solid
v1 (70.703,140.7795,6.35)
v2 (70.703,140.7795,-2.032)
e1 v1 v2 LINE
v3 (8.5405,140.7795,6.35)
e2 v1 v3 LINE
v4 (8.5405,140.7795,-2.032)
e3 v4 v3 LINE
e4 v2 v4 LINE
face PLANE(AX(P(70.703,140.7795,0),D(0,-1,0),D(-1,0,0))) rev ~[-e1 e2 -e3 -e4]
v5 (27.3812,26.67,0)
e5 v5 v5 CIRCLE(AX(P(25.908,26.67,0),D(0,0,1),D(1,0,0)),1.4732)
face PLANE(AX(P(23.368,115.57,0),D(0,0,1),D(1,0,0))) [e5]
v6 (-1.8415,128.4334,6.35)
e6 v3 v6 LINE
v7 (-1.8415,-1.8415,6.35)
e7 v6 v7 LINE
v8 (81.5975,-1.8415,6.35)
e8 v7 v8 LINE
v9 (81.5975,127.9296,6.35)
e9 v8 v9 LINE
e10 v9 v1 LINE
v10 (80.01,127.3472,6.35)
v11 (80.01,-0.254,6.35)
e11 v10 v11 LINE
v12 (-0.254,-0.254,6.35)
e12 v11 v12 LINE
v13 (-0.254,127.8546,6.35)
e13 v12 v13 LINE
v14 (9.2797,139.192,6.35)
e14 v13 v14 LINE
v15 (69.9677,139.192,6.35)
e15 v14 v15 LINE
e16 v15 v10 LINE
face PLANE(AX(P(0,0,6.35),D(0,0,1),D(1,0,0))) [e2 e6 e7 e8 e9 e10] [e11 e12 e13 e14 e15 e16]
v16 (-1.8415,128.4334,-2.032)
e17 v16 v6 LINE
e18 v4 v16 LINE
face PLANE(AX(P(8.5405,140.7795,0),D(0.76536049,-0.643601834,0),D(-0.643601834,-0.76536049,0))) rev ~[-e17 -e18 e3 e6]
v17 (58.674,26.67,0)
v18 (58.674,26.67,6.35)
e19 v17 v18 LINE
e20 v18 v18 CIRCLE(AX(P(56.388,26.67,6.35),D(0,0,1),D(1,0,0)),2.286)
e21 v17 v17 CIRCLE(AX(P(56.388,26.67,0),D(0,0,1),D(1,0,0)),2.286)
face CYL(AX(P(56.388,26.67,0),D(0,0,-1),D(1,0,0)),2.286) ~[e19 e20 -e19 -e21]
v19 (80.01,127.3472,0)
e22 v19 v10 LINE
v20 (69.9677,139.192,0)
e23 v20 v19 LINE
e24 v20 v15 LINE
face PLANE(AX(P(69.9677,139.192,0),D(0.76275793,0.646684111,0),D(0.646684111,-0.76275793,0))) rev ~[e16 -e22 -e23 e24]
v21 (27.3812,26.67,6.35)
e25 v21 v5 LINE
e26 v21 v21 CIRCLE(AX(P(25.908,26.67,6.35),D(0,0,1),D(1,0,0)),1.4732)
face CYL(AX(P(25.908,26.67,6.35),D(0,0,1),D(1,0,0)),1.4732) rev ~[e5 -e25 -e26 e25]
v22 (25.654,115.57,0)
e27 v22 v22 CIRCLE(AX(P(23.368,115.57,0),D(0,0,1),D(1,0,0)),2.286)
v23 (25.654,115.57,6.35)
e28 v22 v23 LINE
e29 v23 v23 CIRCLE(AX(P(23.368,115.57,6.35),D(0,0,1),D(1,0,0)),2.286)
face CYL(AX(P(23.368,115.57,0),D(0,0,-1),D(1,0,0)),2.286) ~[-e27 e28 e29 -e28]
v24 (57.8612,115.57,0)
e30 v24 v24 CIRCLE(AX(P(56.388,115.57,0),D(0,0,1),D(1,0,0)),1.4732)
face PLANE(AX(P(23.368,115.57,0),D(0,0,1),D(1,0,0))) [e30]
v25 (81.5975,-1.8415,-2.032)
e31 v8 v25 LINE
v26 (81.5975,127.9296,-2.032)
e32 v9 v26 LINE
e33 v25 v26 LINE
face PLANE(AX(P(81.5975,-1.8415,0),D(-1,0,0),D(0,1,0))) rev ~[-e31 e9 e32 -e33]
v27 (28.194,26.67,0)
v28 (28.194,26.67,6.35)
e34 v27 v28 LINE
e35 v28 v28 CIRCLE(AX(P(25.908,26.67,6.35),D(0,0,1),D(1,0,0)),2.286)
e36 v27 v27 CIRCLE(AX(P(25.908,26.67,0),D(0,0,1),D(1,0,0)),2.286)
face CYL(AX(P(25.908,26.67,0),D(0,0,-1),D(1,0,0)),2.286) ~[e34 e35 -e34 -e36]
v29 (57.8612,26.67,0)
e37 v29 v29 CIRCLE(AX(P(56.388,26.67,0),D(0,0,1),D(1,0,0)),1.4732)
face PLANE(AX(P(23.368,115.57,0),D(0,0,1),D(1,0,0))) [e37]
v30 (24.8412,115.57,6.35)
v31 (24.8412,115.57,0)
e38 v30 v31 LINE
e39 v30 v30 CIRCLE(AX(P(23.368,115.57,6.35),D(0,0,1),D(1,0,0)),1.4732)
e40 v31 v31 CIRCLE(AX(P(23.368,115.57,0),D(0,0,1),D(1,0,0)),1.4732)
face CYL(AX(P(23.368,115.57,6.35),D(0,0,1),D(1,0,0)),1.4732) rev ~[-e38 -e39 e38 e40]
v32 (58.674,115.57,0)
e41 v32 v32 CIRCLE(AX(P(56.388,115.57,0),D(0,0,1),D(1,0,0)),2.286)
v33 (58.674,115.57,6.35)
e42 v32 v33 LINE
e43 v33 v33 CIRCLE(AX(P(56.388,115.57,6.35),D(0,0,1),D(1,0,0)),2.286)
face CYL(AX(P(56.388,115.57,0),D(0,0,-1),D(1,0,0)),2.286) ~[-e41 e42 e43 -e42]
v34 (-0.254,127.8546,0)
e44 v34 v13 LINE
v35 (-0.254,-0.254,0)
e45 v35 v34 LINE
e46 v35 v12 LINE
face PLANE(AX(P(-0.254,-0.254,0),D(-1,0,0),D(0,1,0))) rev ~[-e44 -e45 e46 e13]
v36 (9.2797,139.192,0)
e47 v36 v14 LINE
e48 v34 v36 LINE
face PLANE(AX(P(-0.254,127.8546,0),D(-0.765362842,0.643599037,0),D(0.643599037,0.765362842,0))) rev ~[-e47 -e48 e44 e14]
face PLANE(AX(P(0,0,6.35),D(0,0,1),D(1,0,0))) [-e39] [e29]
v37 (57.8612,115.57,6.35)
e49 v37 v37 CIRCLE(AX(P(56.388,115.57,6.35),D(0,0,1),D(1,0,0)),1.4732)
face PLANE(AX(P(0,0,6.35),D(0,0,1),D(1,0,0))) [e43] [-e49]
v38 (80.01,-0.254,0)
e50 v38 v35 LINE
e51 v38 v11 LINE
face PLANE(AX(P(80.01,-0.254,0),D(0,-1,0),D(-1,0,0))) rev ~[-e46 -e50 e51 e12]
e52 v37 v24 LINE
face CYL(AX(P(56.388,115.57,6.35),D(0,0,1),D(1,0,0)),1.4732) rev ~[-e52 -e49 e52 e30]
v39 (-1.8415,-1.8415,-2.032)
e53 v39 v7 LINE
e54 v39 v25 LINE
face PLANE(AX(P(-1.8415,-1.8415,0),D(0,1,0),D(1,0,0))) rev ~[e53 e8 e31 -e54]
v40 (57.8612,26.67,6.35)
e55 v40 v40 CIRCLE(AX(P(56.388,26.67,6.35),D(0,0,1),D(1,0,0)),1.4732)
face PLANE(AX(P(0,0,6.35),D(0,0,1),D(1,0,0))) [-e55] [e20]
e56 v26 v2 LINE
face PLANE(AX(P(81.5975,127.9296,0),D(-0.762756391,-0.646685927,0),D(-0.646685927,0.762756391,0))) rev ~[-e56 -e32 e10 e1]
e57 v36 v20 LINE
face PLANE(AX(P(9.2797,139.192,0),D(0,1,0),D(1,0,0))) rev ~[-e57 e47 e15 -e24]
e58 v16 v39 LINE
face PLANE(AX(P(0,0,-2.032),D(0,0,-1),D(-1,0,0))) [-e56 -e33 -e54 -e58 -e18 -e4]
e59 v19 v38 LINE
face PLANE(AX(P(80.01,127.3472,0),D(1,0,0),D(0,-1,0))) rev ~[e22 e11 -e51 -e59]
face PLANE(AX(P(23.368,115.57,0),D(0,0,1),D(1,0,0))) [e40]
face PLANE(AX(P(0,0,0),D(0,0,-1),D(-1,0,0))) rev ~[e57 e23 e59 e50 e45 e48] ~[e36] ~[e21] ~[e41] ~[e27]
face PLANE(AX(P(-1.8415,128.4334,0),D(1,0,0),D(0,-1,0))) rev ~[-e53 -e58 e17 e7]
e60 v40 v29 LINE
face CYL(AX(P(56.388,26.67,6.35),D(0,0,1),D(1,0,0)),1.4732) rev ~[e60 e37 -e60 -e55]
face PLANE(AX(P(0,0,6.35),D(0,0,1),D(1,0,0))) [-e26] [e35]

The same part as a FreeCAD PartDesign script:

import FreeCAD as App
import Part
import Sketcher

V = App.Vector
Q = App.Units.Quantity

doc = App.newDocument("Part")
body = doc.addObject("PartDesign::Body", "Body")
body.AllowCompound = True

sketch1 = doc.addObject("Sketcher::SketchObject", "Sketch")
body.addObject(sketch1)
sketch1.AttachmentSupport = (doc.XY_Plane, [""])
sketch1.MapMode = "FlatFace"
sketch1.addGeometry([
    Part.Circle(V(23.4, 115.6, 0), V(0, 0, 1), 2.3),
    Part.Circle(V(56.4, 115.6, 0), V(0, 0, 1), 2.3),
    Part.Circle(V(25.9, 26.7, 0), V(0, 0, 1), 2.3),
    Part.Circle(V(56.4, 26.7, 0), V(0, 0, 1), 2.3),
    Part.LineSegment(V(70.7, 140.8, 0), V(8.5, 140.8, 0)),
    Part.LineSegment(V(8.5, 140.8, 0), V(-1.8, 128.4, 0)),
    Part.LineSegment(V(-1.8, 128.4, 0), V(-1.8, -1.8, 0)),
    Part.LineSegment(V(-1.8, -1.8, 0), V(81.6, -1.8, 0)),
    Part.LineSegment(V(81.6, -1.8, 0), V(81.6, 127.9, 0)),
    Part.LineSegment(V(81.6, 127.9, 0), V(70.7, 140.8, 0)),
    Part.LineSegment(V(-0.3, -0.3, 0), V(-0.3, 127.9, 0)),
    Part.LineSegment(V(-0.3, 127.9, 0), V(9.3, 139.2, 0)),
    Part.LineSegment(V(9.3, 139.2, 0), V(70, 139.2, 0)),
    Part.LineSegment(V(70, 139.2, 0), V(80, 127.3, 0)),
    Part.LineSegment(V(80, 127.3, 0), V(80, -0.3, 0)),
    Part.LineSegment(V(80, -0.3, 0), V(-0.3, -0.3, 0)),
], False)
sketch1.addConstraint([
    Sketcher.Constraint("Coincident", 4, 2, 5, 1),
    Sketcher.Constraint("Coincident", 5, 2, 6, 1),
    Sketcher.Constraint("Coincident", 6, 2, 7, 1),
    Sketcher.Constraint("Coincident", 7, 2, 8, 1),
    Sketcher.Constraint("Coincident", 8, 2, 9, 1),
    Sketcher.Constraint("Coincident", 9, 2, 4, 1),
    Sketcher.Constraint("Coincident", 10, 2, 11, 1),
    Sketcher.Constraint("Coincident", 11, 2, 12, 1),
    Sketcher.Constraint("Coincident", 12, 2, 13, 1),
    Sketcher.Constraint("Coincident", 13, 2, 14, 1),
    Sketcher.Constraint("Coincident", 14, 2, 15, 1),
    Sketcher.Constraint("Coincident", 15, 2, 10, 1),
    Sketcher.Constraint("Horizontal", 4),
    Sketcher.Constraint("Vertical", 6),
    Sketcher.Constraint("Horizontal", 7),
    Sketcher.Constraint("Vertical", 8),
    Sketcher.Constraint("Vertical", 10),
    Sketcher.Constraint("Horizontal", 12),
    Sketcher.Constraint("Vertical", 14),
    Sketcher.Constraint("Horizontal", 15),
    Sketcher.Constraint("Equal", 0, 1),
    Sketcher.Constraint("Equal", 1, 2),
    Sketcher.Constraint("Equal", 2, 3),
    Sketcher.Constraint("Parallel", 5, 11),
    Sketcher.Constraint("Parallel", 9, 13),
    Sketcher.Constraint("Horizontal", 0, 3, 1, 3),
    Sketcher.Constraint("Horizontal", 2, 3, 3, 3),
    Sketcher.Constraint("Vertical", 1, 3, 3, 3),
    Sketcher.Constraint("Diameter", 0, Q("0.18 in")),
    Sketcher.Constraint("DistanceX", 10, 2, -1, 1, Q("0.01 in")),
    Sketcher.Constraint("DistanceY", 14, 2, -1, 1, Q("0.01 in")),
    Sketcher.Constraint("DistanceX", 5, 2, 10, 2, Q("0.0625 in")),
    Sketcher.Constraint("DistanceY", 11, 2, 4, 2, Q("0.0625 in")),
    Sketcher.Constraint("DistanceX", 13, 2, 8, 2, Q("0.0625 in")),
    Sketcher.Constraint("DistanceY", 7, 2, 14, 2, Q("0.0625 in")),
    Sketcher.Constraint("DistanceX", 15, 2, 15, 1, Q("3.16 in")),
    Sketcher.Constraint("DistanceX", 0, 3, 1, 3, Q("1.3 in")),
    Sketcher.Constraint("DistanceX", 0, 3, 2, 3, Q("0.1 in")),
    Sketcher.Constraint("DistanceY", 2, 3, 0, 3, Q("3.5 in")),
    Sketcher.Constraint("DistanceX", -1, 1, 0, 3, Q("0.92 in")),
    Sketcher.Constraint("DistanceY", -1, 1, 0, 3, Q("4.55 in")),
    Sketcher.Constraint("DistanceY", -1, 1, 11, 2, Q("5.48 in")),
    Sketcher.Constraint("Angle", 5, Q("-130.061 deg")),
    Sketcher.Constraint("DistanceX", 12, 1, 12, 2, Q("2.3893 in")),
    Sketcher.Constraint("DistanceY", 8, 1, 8, 2, Q("5.1091 in")),
    Sketcher.Constraint("Distance", 11, Q("0.5832 in")),
    Sketcher.Constraint("DistanceX", 4, 2, 4, 1, Q("62.1625 mm")),
    Sketcher.Constraint("DistanceY", 6, 2, 6, 1, Q("130.275 mm")),
])
pad1 = doc.addObject("PartDesign::Pad", "Pad")
body.addObject(pad1)
pad1.Profile = sketch1
pad1.Length = Q("0.25 in")

sketch2 = doc.addObject("Sketcher::SketchObject", "Sketch001")
body.addObject(sketch2)
sketch2.AttachmentSupport = (doc.XY_Plane, [""])
sketch2.MapMode = "FlatFace"
sketch2.addGeometry([
    Part.LineSegment(V(-2, -2, 0), V(-2, 128, 0)),
    Part.LineSegment(V(-2, 128, 0), V(9, 141, 0)),
    Part.LineSegment(V(9, 141, 0), V(71, 141, 0)),
    Part.LineSegment(V(71, 141, 0), V(82, 128, 0)),
    Part.LineSegment(V(82, 128, 0), V(82, -2, 0)),
    Part.LineSegment(V(82, -2, 0), V(-2, -2, 0)),
], False)
sketch2.addConstraint([
    Sketcher.Constraint("Coincident", 0, 2, 1, 1),
    Sketcher.Constraint("Coincident", 1, 2, 2, 1),
    Sketcher.Constraint("Coincident", 2, 2, 3, 1),
    Sketcher.Constraint("Coincident", 3, 2, 4, 1),
    Sketcher.Constraint("Coincident", 4, 2, 5, 1),
    Sketcher.Constraint("Coincident", 5, 2, 0, 1),
    Sketcher.Constraint("Vertical", 0),
    Sketcher.Constraint("Horizontal", 2),
    Sketcher.Constraint("Vertical", 4),
    Sketcher.Constraint("Horizontal", 5),
    Sketcher.Constraint("DistanceX", 5, 2, 5, 1, Q("3.285 in")),
    Sketcher.Constraint("Angle", 1, Q("49.939 deg")),
    Sketcher.Constraint("DistanceY", 4, 2, 4, 1, Q("5.1091 in")),
    Sketcher.Constraint("DistanceY", 4, 2, 2, 2, Q("5.615 in")),
    Sketcher.Constraint("DistanceX", 2, 1, 2, 2, Q("62.1625 mm")),
    Sketcher.Constraint("DistanceY", 0, 1, 0, 2, Q("130.275 mm")),
    Sketcher.Constraint("DistanceX", 0, 2, -1, 1, Q("0.0725 in")),
    Sketcher.Constraint("DistanceY", -1, 1, 1, 2, Q("5.5425 in")),
])
pad2 = doc.addObject("PartDesign::Pad", "Pad001")
body.addObject(pad2)
pad2.Profile = sketch2
pad2.Length = Q("0.08 in")
pad2.Reversed = True

sketch3 = doc.addObject("Sketcher::SketchObject", "Sketch002")
body.addObject(sketch3)
sketch3.AttachmentSupport = (doc.XY_Plane, [""])
sketch3.MapMode = "FlatFace"
sketch3.AttachmentOffset = App.Placement(V(0, 0, 0.25 * 25.4), App.Rotation())
sketch3.addGeometry([
    Part.Circle(V(23.4, 115.6, 0), V(0, 0, 1), 1.5),
    Part.Circle(V(56.4, 115.6, 0), V(0, 0, 1), 1.5),
    Part.Circle(V(56.4, 26.7, 0), V(0, 0, 1), 1.5),
    Part.Circle(V(25.9, 26.7, 0), V(0, 0, 1), 1.5),
], False)
sketch3.addConstraint([
    Sketcher.Constraint("Equal", 0, 1),
    Sketcher.Constraint("Equal", 1, 2),
    Sketcher.Constraint("Equal", 2, 3),
    Sketcher.Constraint("Horizontal", 0, 3, 1, 3),
    Sketcher.Constraint("Horizontal", 2, 3, 3, 3),
    Sketcher.Constraint("Vertical", 1, 3, 2, 3),
    Sketcher.Constraint("Diameter", 0, Q("0.116 in")),
    Sketcher.Constraint("DistanceX", 0, 3, 1, 3, Q("1.3 in")),
    Sketcher.Constraint("DistanceY", 2, 3, 1, 3, Q("3.5 in")),
    Sketcher.Constraint("DistanceX", 3, 3, 2, 3, Q("1.2 in")),
    Sketcher.Constraint("DistanceX", -1, 1, 0, 3, Q("0.92 in")),
    Sketcher.Constraint("DistanceY", -1, 1, 0, 3, Q("4.55 in")),
])
pocket1 = doc.addObject("PartDesign::Pocket", "Pocket")
body.addObject(pocket1)
pocket1.Profile = sketch3
pocket1.Length = Q("0.25 in")

doc.recompute()
